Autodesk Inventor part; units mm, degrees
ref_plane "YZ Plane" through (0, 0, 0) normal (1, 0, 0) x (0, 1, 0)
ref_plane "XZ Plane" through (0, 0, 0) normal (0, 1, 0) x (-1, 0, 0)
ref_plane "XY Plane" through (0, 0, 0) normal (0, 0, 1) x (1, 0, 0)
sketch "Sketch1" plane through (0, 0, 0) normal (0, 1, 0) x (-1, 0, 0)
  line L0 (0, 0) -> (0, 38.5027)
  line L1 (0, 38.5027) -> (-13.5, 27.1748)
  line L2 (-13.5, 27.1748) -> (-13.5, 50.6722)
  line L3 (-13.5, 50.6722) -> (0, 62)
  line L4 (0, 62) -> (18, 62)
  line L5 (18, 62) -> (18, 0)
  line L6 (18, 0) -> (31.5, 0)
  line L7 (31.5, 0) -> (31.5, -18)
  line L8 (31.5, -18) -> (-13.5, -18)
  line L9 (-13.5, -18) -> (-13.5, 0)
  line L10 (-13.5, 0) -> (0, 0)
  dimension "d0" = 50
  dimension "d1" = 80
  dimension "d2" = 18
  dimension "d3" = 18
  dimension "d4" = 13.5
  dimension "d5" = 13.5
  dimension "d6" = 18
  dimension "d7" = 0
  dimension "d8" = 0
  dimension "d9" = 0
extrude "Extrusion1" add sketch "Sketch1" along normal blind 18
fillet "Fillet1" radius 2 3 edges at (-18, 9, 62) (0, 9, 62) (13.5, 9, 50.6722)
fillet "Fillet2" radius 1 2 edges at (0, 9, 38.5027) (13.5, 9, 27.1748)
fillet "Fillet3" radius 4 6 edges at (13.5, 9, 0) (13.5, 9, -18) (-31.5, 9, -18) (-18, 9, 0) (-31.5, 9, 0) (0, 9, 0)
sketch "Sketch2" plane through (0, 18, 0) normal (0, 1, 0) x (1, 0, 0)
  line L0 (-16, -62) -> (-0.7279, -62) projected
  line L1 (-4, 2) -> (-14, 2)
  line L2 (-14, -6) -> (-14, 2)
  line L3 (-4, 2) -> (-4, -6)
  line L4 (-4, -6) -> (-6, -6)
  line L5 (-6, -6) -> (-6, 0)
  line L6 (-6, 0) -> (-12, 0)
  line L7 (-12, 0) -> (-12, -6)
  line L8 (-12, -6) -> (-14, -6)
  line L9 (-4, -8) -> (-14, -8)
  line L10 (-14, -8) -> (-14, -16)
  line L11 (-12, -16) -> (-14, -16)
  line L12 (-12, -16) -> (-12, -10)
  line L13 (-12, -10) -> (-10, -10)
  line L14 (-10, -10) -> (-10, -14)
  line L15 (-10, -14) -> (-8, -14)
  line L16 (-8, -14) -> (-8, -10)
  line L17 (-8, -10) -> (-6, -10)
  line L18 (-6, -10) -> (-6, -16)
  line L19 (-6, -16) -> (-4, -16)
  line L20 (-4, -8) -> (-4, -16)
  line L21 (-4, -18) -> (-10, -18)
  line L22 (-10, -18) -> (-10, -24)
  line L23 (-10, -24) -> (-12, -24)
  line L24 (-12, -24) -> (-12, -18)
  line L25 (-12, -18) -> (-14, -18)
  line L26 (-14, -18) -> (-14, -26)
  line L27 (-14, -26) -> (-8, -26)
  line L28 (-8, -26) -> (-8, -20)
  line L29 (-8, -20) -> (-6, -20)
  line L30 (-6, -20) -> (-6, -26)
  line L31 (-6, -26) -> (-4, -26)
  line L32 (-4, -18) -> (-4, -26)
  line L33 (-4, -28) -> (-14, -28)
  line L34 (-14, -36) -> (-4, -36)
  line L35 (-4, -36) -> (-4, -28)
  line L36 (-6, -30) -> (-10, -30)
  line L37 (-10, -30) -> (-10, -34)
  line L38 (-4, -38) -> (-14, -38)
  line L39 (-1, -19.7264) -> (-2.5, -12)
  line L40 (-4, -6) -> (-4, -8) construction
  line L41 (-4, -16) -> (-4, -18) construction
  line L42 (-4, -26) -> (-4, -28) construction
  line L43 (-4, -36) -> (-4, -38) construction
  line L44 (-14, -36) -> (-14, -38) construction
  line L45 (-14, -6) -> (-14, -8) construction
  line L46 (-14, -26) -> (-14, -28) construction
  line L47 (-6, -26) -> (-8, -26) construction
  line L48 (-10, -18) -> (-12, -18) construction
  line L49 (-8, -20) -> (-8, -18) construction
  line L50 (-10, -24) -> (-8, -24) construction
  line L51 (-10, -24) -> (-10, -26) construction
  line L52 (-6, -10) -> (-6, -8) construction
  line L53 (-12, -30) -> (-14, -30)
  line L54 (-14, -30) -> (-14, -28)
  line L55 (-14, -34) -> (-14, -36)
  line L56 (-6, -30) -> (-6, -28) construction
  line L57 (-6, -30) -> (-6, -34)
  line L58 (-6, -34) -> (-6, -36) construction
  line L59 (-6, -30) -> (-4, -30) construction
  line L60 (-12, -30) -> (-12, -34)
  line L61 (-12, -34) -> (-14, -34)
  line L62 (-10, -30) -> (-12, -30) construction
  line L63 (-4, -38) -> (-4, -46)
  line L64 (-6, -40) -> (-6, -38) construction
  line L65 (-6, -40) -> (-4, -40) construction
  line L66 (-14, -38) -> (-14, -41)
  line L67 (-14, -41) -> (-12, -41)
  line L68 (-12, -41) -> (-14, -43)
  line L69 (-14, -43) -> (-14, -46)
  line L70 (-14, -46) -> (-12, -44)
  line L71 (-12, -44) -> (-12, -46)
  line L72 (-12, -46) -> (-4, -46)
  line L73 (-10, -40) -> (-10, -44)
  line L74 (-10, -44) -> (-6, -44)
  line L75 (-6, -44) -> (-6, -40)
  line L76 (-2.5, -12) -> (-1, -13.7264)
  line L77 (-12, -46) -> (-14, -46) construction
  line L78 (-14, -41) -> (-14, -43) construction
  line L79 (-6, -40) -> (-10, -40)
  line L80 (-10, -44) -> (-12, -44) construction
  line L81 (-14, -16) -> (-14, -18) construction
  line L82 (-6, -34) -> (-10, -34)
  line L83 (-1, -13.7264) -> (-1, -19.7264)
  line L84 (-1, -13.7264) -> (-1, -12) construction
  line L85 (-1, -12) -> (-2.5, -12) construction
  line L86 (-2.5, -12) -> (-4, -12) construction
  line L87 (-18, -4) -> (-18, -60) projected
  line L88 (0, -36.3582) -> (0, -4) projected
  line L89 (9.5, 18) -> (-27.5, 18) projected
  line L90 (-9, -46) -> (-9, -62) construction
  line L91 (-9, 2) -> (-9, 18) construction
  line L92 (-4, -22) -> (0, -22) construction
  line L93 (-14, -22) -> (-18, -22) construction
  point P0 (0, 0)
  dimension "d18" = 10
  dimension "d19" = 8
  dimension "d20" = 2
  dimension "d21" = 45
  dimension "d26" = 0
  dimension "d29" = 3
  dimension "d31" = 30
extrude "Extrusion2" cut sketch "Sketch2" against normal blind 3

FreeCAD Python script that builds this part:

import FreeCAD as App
import Part
import Sketcher
Q = App.Units.Quantity


def edges_at(feature, points):
    """Names of the edges that pass closest to the given points."""
    edges = feature.Shape.Edges
    near = lambda p: min(range(len(edges)), key=lambda i: edges[i].distToShape(Part.Vertex(*p))[0])
    return sorted({f"Edge{near(p) + 1}" for p in points})

doc = App.newDocument("Part")
body = doc.addObject("PartDesign::Body", "Body")

sketch1 = body.newObject("Sketcher::SketchObject", "Sketch")
sketch1.AttachmentSupport = (doc.getObject("XZ_Plane"), [""])
sketch1.MapMode = "FlatFace"
sketch1.addGeometry([
    Part.LineSegment(App.Vector(0, 39, 0), App.Vector(0, 0, 0)),
    Part.LineSegment(App.Vector(0, 0, 0), App.Vector(14, 0, 0)),
    Part.LineSegment(App.Vector(14, 0, 0), App.Vector(14, -18, 0)),
    Part.LineSegment(App.Vector(14, -18, 0), App.Vector(-32, -18, 0)),
    Part.LineSegment(App.Vector(-32, -18, 0), App.Vector(-32, 0, 0)),
    Part.LineSegment(App.Vector(-32, 0, 0), App.Vector(-18, 0, 0)),
    Part.LineSegment(App.Vector(-18, 0, 0), App.Vector(-18, 62, 0)),
    Part.LineSegment(App.Vector(-18, 62, 0), App.Vector(0, 62, 0)),
    Part.LineSegment(App.Vector(0, 62, 0), App.Vector(14, 51, 0)),
    Part.LineSegment(App.Vector(14, 51, 0), App.Vector(14, 27, 0)),
    Part.LineSegment(App.Vector(14, 27, 0), App.Vector(0, 39, 0)),
], False)
sketch1.addConstraint([
    Sketcher.Constraint("Coincident", 0, 2, 1, 1),
    Sketcher.Constraint("Coincident", 1, 2, 2, 1),
    Sketcher.Constraint("Coincident", 2, 2, 3, 1),
    Sketcher.Constraint("Coincident", 3, 2, 4, 1),
    Sketcher.Constraint("Coincident", 4, 2, 5, 1),
    Sketcher.Constraint("Coincident", 5, 2, 6, 1),
    Sketcher.Constraint("Coincident", 6, 2, 7, 1),
    Sketcher.Constraint("Coincident", 7, 2, 8, 1),
    Sketcher.Constraint("Coincident", 8, 2, 9, 1),
    Sketcher.Constraint("Coincident", 9, 2, 10, 1),
    Sketcher.Constraint("Coincident", 10, 2, 0, 1),
    Sketcher.Constraint("Vertical", 0),
    Sketcher.Constraint("Horizontal", 1),
    Sketcher.Constraint("Vertical", 2),
    Sketcher.Constraint("Horizontal", 3),
    Sketcher.Constraint("Vertical", 4),
    Sketcher.Constraint("Horizontal", 5),
    Sketcher.Constraint("Vertical", 6),
    Sketcher.Constraint("Horizontal", 7),
    Sketcher.Constraint("Vertical", 9),
    Sketcher.Constraint("Coincident", 0, 2, -1, 1),
    Sketcher.Constraint("PointOnObject", 4, 2, -1),
    Sketcher.Constraint("PointOnObject", 7, 2, -2),
    Sketcher.Constraint("Parallel", 8, 10),
    Sketcher.Constraint("Vertical", 2, 2, 8, 2),
    Sketcher.Constraint("Equal", 1, 5),
    Sketcher.Constraint("Equal", 7, 2),
    Sketcher.Constraint("DistanceX", 7, 1, 7, 2, Q("18 mm")),
    Sketcher.Constraint("DistanceX", 1, 1, 1, 2, Q("13.5 mm")),
    Sketcher.Constraint("DistanceY", 3, 2, 6, 2, Q("80 mm")),
    Sketcher.Constraint("Angle", 8, Q("-40 deg")),
    Sketcher.Constraint("DistanceY", 0, 2, 0, 1, Q("38.5027 mm")),
])
pad1 = body.newObject("PartDesign::Pad", "Pad")
pad1.Profile = sketch1
pad1.Length = 18
pad1.Reversed = True
doc.recompute()

fillet = body.newObject("PartDesign::Fillet", "Fillet")
fillet.Base = (pad1, edges_at(pad1, [(-18, 9, 62), (0, 9, 62), (13.5, 9, 50.672)]))
fillet.Radius = 2
doc.recompute()

fillet2 = body.newObject("PartDesign::Fillet", "Fillet001")
fillet2.Base = (fillet, edges_at(fillet, [(0, 9, 38.503), (13.5, 9, 27.175)]))
fillet2.Radius = 1
doc.recompute()

fillet3 = body.newObject("PartDesign::Fillet", "Fillet002")
fillet3.Base = (fillet2, edges_at(fillet2, [
    (13.5, 9, 0),
    (13.5, 9, -18),
    (-31.5, 9, -18),
    (-18, 9, 0),
    (-31.5, 9, 0),
    (0, 9, 0),
]))
fillet3.Radius = 4

sketch2 = body.newObject("Sketcher::SketchObject", "Sketch001")
sketch2.AttachmentSupport = (doc.getObject("XZ_Plane"), [""])
sketch2.MapMode = "FlatFace"
sketch2.AttachmentOffset = App.Placement(App.Vector(0, 0, -18), App.Rotation())
sketch2.addGeometry([
    Part.LineSegment(App.Vector(-4, 6, 0), App.Vector(-4, -2, 0)),
    Part.LineSegment(App.Vector(-4, -2, 0), App.Vector(-14, -2, 0)),
    Part.LineSegment(App.Vector(-14, -2, 0), App.Vector(-14, 6, 0)),
    Part.LineSegment(App.Vector(-14, 6, 0), App.Vector(-12, 6, 0)),
    Part.LineSegment(App.Vector(-12, 6, 0), App.Vector(-12, 0, 0)),
    Part.LineSegment(App.Vector(-12, 0, 0), App.Vector(-6, 0, 0)),
    Part.LineSegment(App.Vector(-6, 0, 0), App.Vector(-6, 6, 0)),
    Part.LineSegment(App.Vector(-6, 6, 0), App.Vector(-4, 6, 0)),
    Part.LineSegment(App.Vector(-4, 16, 0), App.Vector(-4, 8, 0)),
    Part.LineSegment(App.Vector(-4, 8, 0), App.Vector(-14, 8, 0)),
    Part.LineSegment(App.Vector(-14, 8, 0), App.Vector(-14, 16, 0)),
    Part.LineSegment(App.Vector(-14, 16, 0), App.Vector(-12, 16, 0)),
    Part.LineSegment(App.Vector(-12, 16, 0), App.Vector(-12, 10, 0)),
    Part.LineSegment(App.Vector(-12, 10, 0), App.Vector(-10, 10, 0)),
    Part.LineSegment(App.Vector(-10, 10, 0), App.Vector(-10, 14, 0)),
    Part.LineSegment(App.Vector(-10, 14, 0), App.Vector(-8, 14, 0)),
    Part.LineSegment(App.Vector(-8, 14, 0), App.Vector(-8, 10, 0)),
    Part.LineSegment(App.Vector(-8, 10, 0), App.Vector(-6, 10, 0)),
    Part.LineSegment(App.Vector(-6, 10, 0), App.Vector(-6, 16, 0)),
    Part.LineSegment(App.Vector(-6, 16, 0), App.Vector(-4, 16, 0)),
    Part.LineSegment(App.Vector(-4, 26, 0), App.Vector(-4, 18, 0)),
    Part.LineSegment(App.Vector(-4, 18, 0), App.Vector(-10, 18, 0)),
    Part.LineSegment(App.Vector(-10, 18, 0), App.Vector(-10, 24, 0)),
    Part.LineSegment(App.Vector(-10, 24, 0), App.Vector(-12, 24, 0)),
    Part.LineSegment(App.Vector(-12, 24, 0), App.Vector(-12, 18, 0)),
    Part.LineSegment(App.Vector(-12, 18, 0), App.Vector(-14, 18, 0)),
    Part.LineSegment(App.Vector(-14, 18, 0), App.Vector(-14, 26, 0)),
    Part.LineSegment(App.Vector(-14, 26, 0), App.Vector(-8, 26, 0)),
    Part.LineSegment(App.Vector(-8, 26, 0), App.Vector(-8, 20, 0)),
    Part.LineSegment(App.Vector(-8, 20, 0), App.Vector(-6, 20, 0)),
    Part.LineSegment(App.Vector(-6, 20, 0), App.Vector(-6, 26, 0)),
    Part.LineSegment(App.Vector(-6, 26, 0), App.Vector(-4, 26, 0)),
    Part.LineSegment(App.Vector(-4, 36, 0), App.Vector(-4, 28, 0)),
    Part.LineSegment(App.Vector(-4, 28, 0), App.Vector(-14, 28, 0)),
    Part.LineSegment(App.Vector(-14, 28, 0), App.Vector(-14, 30, 0)),
    Part.LineSegment(App.Vector(-14, 30, 0), App.Vector(-12, 30, 0)),
    Part.LineSegment(App.Vector(-12, 30, 0), App.Vector(-12, 34, 0)),
    Part.LineSegment(App.Vector(-12, 34, 0), App.Vector(-14, 34, 0)),
    Part.LineSegment(App.Vector(-14, 34, 0), App.Vector(-14, 36, 0)),
    Part.LineSegment(App.Vector(-14, 36, 0), App.Vector(-4, 36, 0)),
    Part.LineSegment(App.Vector(-10, 30, 0), App.Vector(-6, 30, 0)),
    Part.LineSegment(App.Vector(-6, 30, 0), App.Vector(-6, 34, 0)),
    Part.LineSegment(App.Vector(-6, 34, 0), App.Vector(-10, 34, 0)),
    Part.LineSegment(App.Vector(-10, 34, 0), App.Vector(-10, 30, 0)),
    Part.LineSegment(App.Vector(-4, 46, 0), App.Vector(-4, 38, 0)),
    Part.LineSegment(App.Vector(-4, 38, 0), App.Vector(-14, 38, 0)),
    Part.LineSegment(App.Vector(-14, 38, 0), App.Vector(-14, 41, 0)),
    Part.LineSegment(App.Vector(-14, 41, 0), App.Vector(-12, 41, 0)),
    Part.LineSegment(App.Vector(-12, 41, 0), App.Vector(-14, 43, 0)),
    Part.LineSegment(App.Vector(-14, 43, 0), App.Vector(-14, 46, 0)),
    Part.LineSegment(App.Vector(-14, 46, 0), App.Vector(-12, 44, 0)),
    Part.LineSegment(App.Vector(-12, 44, 0), App.Vector(-12, 46, 0)),
    Part.LineSegment(App.Vector(-12, 46, 0), App.Vector(-4, 46, 0)),
    Part.LineSegment(App.Vector(-10, 44, 0), App.Vector(-10, 40, 0)),
    Part.LineSegment(App.Vector(-10, 40, 0), App.Vector(-6, 40, 0)),
    Part.LineSegment(App.Vector(-6, 40, 0), App.Vector(-6, 44, 0)),
    Part.LineSegment(App.Vector(-6, 44, 0), App.Vector(-10, 44, 0)),
    Part.LineSegment(App.Vector(-2.5, 12, 0), App.Vector(-1, 19.7, 0)),
    Part.LineSegment(App.Vector(-1, 19.7, 0), App.Vector(-1, 13.7, 0)),
    Part.LineSegment(App.Vector(-1, 13.7, 0), App.Vector(-2.5, 12, 0)),
], False)
sketch2.addConstraint([
    Sketcher.Constraint("Coincident", 0, 2, 1, 1),
    Sketcher.Constraint("Coincident", 1, 2, 2, 1),
    Sketcher.Constraint("Coincident", 2, 2, 3, 1),
    Sketcher.Constraint("Coincident", 3, 2, 4, 1),
    Sketcher.Constraint("Coincident", 4, 2, 5, 1),
    Sketcher.Constraint("Coincident", 5, 2, 6, 1),
    Sketcher.Constraint("Coincident", 6, 2, 7, 1),
    Sketcher.Constraint("Coincident", 7, 2, 0, 1),
    Sketcher.Constraint("Coincident", 8, 2, 9, 1),
    Sketcher.Constraint("Coincident", 9, 2, 10, 1),
    Sketcher.Constraint("Coincident", 10, 2, 11, 1),
    Sketcher.Constraint("Coincident", 11, 2, 12, 1),
    Sketcher.Constraint("Coincident", 12, 2, 13, 1),
    Sketcher.Constraint("Coincident", 13, 2, 14, 1),
    Sketcher.Constraint("Coincident", 14, 2, 15, 1),
    Sketcher.Constraint("Coincident", 15, 2, 16, 1),
    Sketcher.Constraint("Coincident", 16, 2, 17, 1),
    Sketcher.Constraint("Coincident", 17, 2, 18, 1),
    Sketcher.Constraint("Coincident", 18, 2, 19, 1),
    Sketcher.Constraint("Coincident", 19, 2, 8, 1),
    Sketcher.Constraint("Coincident", 20, 2, 21, 1),
    Sketcher.Constraint("Coincident", 21, 2, 22, 1),
    Sketcher.Constraint("Coincident", 22, 2, 23, 1),
    Sketcher.Constraint("Coincident", 23, 2, 24, 1),
    Sketcher.Constraint("Coincident", 24, 2, 25, 1),
    Sketcher.Constraint("Coincident", 25, 2, 26, 1),
    Sketcher.Constraint("Coincident", 26, 2, 27, 1),
    Sketcher.Constraint("Coincident", 27, 2, 28, 1),
    Sketcher.Constraint("Coincident", 28, 2, 29, 1),
    Sketcher.Constraint("Coincident", 29, 2, 30, 1),
    Sketcher.Constraint("Coincident", 30, 2, 31, 1),
    Sketcher.Constraint("Coincident", 31, 2, 20, 1),
    Sketcher.Constraint("Coincident", 32, 2, 33, 1),
    Sketcher.Constraint("Coincident", 33, 2, 34, 1),
    Sketcher.Constraint("Coincident", 34, 2, 35, 1),
    Sketcher.Constraint("Coincident", 35, 2, 36, 1),
    Sketcher.Constraint("Coincident", 36, 2, 37, 1),
    Sketcher.Constraint("Coincident", 37, 2, 38, 1),
    Sketcher.Constraint("Coincident", 38, 2, 39, 1),
    Sketcher.Constraint("Coincident", 39, 2, 32, 1),
    Sketcher.Constraint("Coincident", 40, 2, 41, 1),
    Sketcher.Constraint("Coincident", 41, 2, 42, 1),
    Sketcher.Constraint("Coincident", 42, 2, 43, 1),
    Sketcher.Constraint("Coincident", 43, 2, 40, 1),
    Sketcher.Constraint("Coincident", 44, 2, 45, 1),
    Sketcher.Constraint("Coincident", 45, 2, 46, 1),
    Sketcher.Constraint("Coincident", 46, 2, 47, 1),
    Sketcher.Constraint("Coincident", 47, 2, 48, 1),
    Sketcher.Constraint("Coincident", 48, 2, 49, 1),
    Sketcher.Constraint("Coincident", 49, 2, 50, 1),
    Sketcher.Constraint("Coincident", 50, 2, 51, 1),
    Sketcher.Constraint("Coincident", 51, 2, 52, 1),
    Sketcher.Constraint("Coincident", 52, 2, 44, 1),
    Sketcher.Constraint("Coincident", 53, 2, 54, 1),
    Sketcher.Constraint("Coincident", 54, 2, 55, 1),
    Sketcher.Constraint("Coincident", 55, 2, 56, 1),
    Sketcher.Constraint("Coincident", 56, 2, 53, 1),
    Sketcher.Constraint("Coincident", 57, 2, 58, 1),
    Sketcher.Constraint("Coincident", 58, 2, 59, 1),
    Sketcher.Constraint("Coincident", 59, 2, 57, 1),
    Sketcher.Constraint("Vertical", 0),
    Sketcher.Constraint("Horizontal", 1),
    Sketcher.Constraint("Vertical", 2),
    Sketcher.Constraint("Horizontal", 3),
    Sketcher.Constraint("Vertical", 4),
    Sketcher.Constraint("Horizontal", 5),
    Sketcher.Constraint("Vertical", 6),
    Sketcher.Constraint("Horizontal", 7),
    Sketcher.Constraint("Vertical", 8),
    Sketcher.Constraint("Horizontal", 9),
    Sketcher.Constraint("Vertical", 10),
    Sketcher.Constraint("Horizontal", 11),
    Sketcher.Constraint("Vertical", 12),
    Sketcher.Constraint("Horizontal", 13),
    Sketcher.Constraint("Vertical", 14),
    Sketcher.Constraint("Horizontal", 15),
    Sketcher.Constraint("Vertical", 16),
    Sketcher.Constraint("Horizontal", 17),
    Sketcher.Constraint("Vertical", 18),
    Sketcher.Constraint("Horizontal", 19),
    Sketcher.Constraint("Vertical", 20),
    Sketcher.Constraint("Horizontal", 21),
    Sketcher.Constraint("Vertical", 22),
    Sketcher.Constraint("Horizontal", 23),
    Sketcher.Constraint("Vertical", 24),
    Sketcher.Constraint("Horizontal", 25),
    Sketcher.Constraint("Vertical", 26),
    Sketcher.Constraint("Horizontal", 27),
    Sketcher.Constraint("Vertical", 28),
    Sketcher.Constraint("Horizontal", 29),
    Sketcher.Constraint("Vertical", 30),
    Sketcher.Constraint("Horizontal", 31),
    Sketcher.Constraint("Vertical", 32),
    Sketcher.Constraint("Horizontal", 33),
    Sketcher.Constraint("Vertical", 34),
    Sketcher.Constraint("Horizontal", 35),
    Sketcher.Constraint("Vertical", 36),
    Sketcher.Constraint("Horizontal", 37),
    Sketcher.Constraint("Vertical", 38),
    Sketcher.Constraint("Horizontal", 39),
    Sketcher.Constraint("Horizontal", 40),
    Sketcher.Constraint("Vertical", 41),
    Sketcher.Constraint("Horizontal", 42),
    Sketcher.Constraint("Vertical", 43),
    Sketcher.Constraint("Vertical", 44),
    Sketcher.Constraint("Horizontal", 45),
    Sketcher.Constraint("Vertical", 46),
    Sketcher.Constraint("Horizontal", 47),
    Sketcher.Constraint("Vertical", 49),
    Sketcher.Constraint("Vertical", 51),
    Sketcher.Constraint("Horizontal", 52),
    Sketcher.Constraint("Vertical", 53),
    Sketcher.Constraint("Horizontal", 54),
    Sketcher.Constraint("Vertical", 55),
    Sketcher.Constraint("Horizontal", 56),
    Sketcher.Constraint("Vertical", 58),
    Sketcher.Constraint("PointOnObject", 4, 2, -1),
    Sketcher.Constraint("Parallel", 48, 50),
    Sketcher.Constraint("Horizontal", 3, 2, 6, 2),
    Sketcher.Constraint("Horizontal", 13, 2, 16, 2),
    Sketcher.Constraint("Horizontal", 11, 2, 18, 2),
    Sketcher.Constraint("Horizontal", 21, 2, 24, 2),
    Sketcher.Constraint("Horizontal", 27, 2, 30, 2),
    Sketcher.Constraint("Horizontal", 35, 2, 40, 2),
    Sketcher.Constraint("Horizontal", 37, 2, 41, 2),
    Sketcher.Constraint("Horizontal", 49, 2, 51, 2),
    Sketcher.Constraint("Horizontal", 50, 2, 55, 2),
    Sketcher.Constraint("Vertical", 7, 2, 8, 2),
    Sketcher.Constraint("Vertical", 2, 2, 9, 2),
    Sketcher.Constraint("Vertical", 4, 2, 11, 2),
    Sketcher.Constraint("Vertical", 6, 2, 17, 2),
    Sketcher.Constraint("Vertical", 19, 2, 20, 2),
    Sketcher.Constraint("Vertical", 14, 2, 21, 2),
    Sketcher.Constraint("Vertical", 12, 2, 23, 2),
    Sketcher.Constraint("Vertical", 10, 2, 25, 2),
    Sketcher.Constraint("Vertical", 16, 2, 27, 2),
    Sketcher.Constraint("Vertical", 18, 2, 29, 2),
    Sketcher.Constraint("Vertical", 31, 2, 32, 2),
    Sketcher.Constraint("Vertical", 26, 2, 33, 2),
    Sketcher.Constraint("Vertical", 24, 2, 35, 2),
    Sketcher.Constraint("Vertical", 34, 2, 37, 2),
    Sketcher.Constraint("Vertical", 30, 2, 40, 2),
    Sketcher.Constraint("Vertical", 22, 2, 42, 2),
    Sketcher.Constraint("Vertical", 39, 2, 44, 2),
    Sketcher.Constraint("Vertical", 38, 2, 45, 2),
    Sketcher.Constraint("Vertical", 36, 2, 47, 2),
    Sketcher.Constraint("Vertical", 46, 2, 48, 2),
    Sketcher.Constraint("Vertical", 47, 2, 50, 2),
    Sketcher.Constraint("Vertical", 43, 2, 53, 2),
    Sketcher.Constraint("Vertical", 41, 2, 54, 2),
    Sketcher.Constraint("Equal", 3, 7),
    Sketcher.Constraint("Equal", 11, 13),
    Sketcher.Constraint("Equal", 13, 15),
    Sketcher.Constraint("Equal", 15, 17),
    Sketcher.Constraint("Equal", 52, 0),
    Sketcher.Constraint("Equal", 27, 4),
    Sketcher.Constraint("Equal", 2, 8),
    Sketcher.Constraint("Equal", 6, 12),
    Sketcher.Constraint("Equal", 56, 14),
    Sketcher.Constraint("Equal", 10, 20),
    Sketcher.Constraint("Equal", 18, 22),
    Sketcher.Constraint("Equal", 24, 28),
    Sketcher.Constraint("Equal", 26, 32),
    Sketcher.Constraint("Equal", 47, 34),
    Sketcher.Constraint("Equal", 16, 36),
    Sketcher.Constraint("Equal", 32, 44),
    Sketcher.Constraint("Equal", 46, 49),
    Sketcher.Constraint("Equal", 38, 51),
    Sketcher.Constraint("Equal", 43, 53),
    Sketcher.Constraint("Equal", 30, 58),
    Sketcher.Constraint("DistanceX", 1, 2, 1, 1, Q("10 mm")),
    Sketcher.Constraint("DistanceY", -1, 1, 8, 2, Q("8 mm")),
    Sketcher.Constraint("DistanceX", 13, 2, -1, 1, Q("10 mm")),
    Sketcher.Constraint("DistanceY", -1, 1, 34, 2, Q("30 mm")),
    Sketcher.Constraint("DistanceY", 19, 2, 20, 2, Q("2 mm")),
    Sketcher.Constraint("DistanceY", 39, 2, 44, 2, Q("2 mm")),
    Sketcher.Constraint("DistanceX", 20, 2, 57, 2, Q("3 mm")),
    Sketcher.Constraint("DistanceY", 17, 2, 59, 2, Q("2 mm")),
    Sketcher.Constraint("DistanceX", 59, 2, -1, 1, Q("2.5 mm")),
    Sketcher.Constraint("Distance", 59, Q("2.287 mm")),
])
pocket1 = body.newObject("PartDesign::Pocket", "Pocket")
pocket1.Profile = sketch2
pocket1.Length = 3
pocket1.Reversed = True

doc.recompute()
